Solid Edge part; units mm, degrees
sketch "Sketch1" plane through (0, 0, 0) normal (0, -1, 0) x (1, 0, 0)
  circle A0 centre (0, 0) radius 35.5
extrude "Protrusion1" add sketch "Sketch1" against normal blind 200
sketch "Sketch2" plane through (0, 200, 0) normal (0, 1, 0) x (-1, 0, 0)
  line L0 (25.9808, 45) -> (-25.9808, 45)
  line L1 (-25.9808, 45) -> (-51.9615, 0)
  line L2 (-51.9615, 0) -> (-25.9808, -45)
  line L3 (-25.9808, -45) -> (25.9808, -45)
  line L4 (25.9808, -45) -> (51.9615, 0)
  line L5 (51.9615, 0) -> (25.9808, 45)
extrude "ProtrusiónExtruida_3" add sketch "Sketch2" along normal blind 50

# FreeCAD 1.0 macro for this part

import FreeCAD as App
import Part
import Sketcher

V = App.Vector
Q = App.Units.Quantity

doc = App.newDocument("Part")
body = doc.addObject("PartDesign::Body", "Body")

sketch1 = doc.addObject("Sketcher::SketchObject", "Sketch")
body.addObject(sketch1)
sketch1.AttachmentSupport = (doc.XZ_Plane, [""])
sketch1.MapMode = "FlatFace"
sketch1.addGeometry(Part.Circle(V(0, 0, 0), V(0, 0, 1), 36), False)
sketch1.addConstraint([
    Sketcher.Constraint("Coincident", 0, 3, -1, 1),
    Sketcher.Constraint("Diameter", 0, 71.0),
])
pad1 = doc.addObject("PartDesign::Pad", "Pad")
body.addObject(pad1)
pad1.Profile = sketch1
pad1.Length = 200
pad1.Reversed = True

sketch2 = doc.addObject("Sketcher::SketchObject", "Sketch001")
body.addObject(sketch2)
sketch2.AttachmentSupport = (doc.XZ_Plane, [""])
sketch2.MapMode = "FlatFace"
sketch2.AttachmentOffset = App.Placement(V(0, 0, -200), App.Rotation())
sketch2.addGeometry([
    Part.LineSegment(V(-52, 0, 0), V(-26, 45, 0)),
    Part.LineSegment(V(-26, 45, 0), V(26, 45, 0)),
    Part.LineSegment(V(26, 45, 0), V(52, 0, 0)),
    Part.LineSegment(V(52, 0, 0), V(26, -45, 0)),
    Part.LineSegment(V(26, -45, 0), V(-26, -45, 0)),
    Part.LineSegment(V(-26, -45, 0), V(-52, 0, 0)),
], False)
sketch2.addConstraint([
    Sketcher.Constraint("Coincident", 0, 2, 1, 1),
    Sketcher.Constraint("Coincident", 1, 2, 2, 1),
    Sketcher.Constraint("Coincident", 2, 2, 3, 1),
    Sketcher.Constraint("Coincident", 3, 2, 4, 1),
    Sketcher.Constraint("Coincident", 4, 2, 5, 1),
    Sketcher.Constraint("Coincident", 5, 2, 0, 1),
    Sketcher.Constraint("Horizontal", 1),
    Sketcher.Constraint("Horizontal", 4),
    Sketcher.Constraint("Symmetric", 0, 2, 3, 2, -1, 1),
    Sketcher.Constraint("Symmetric", 2, 2, 5, 2, -1, 1),
    Sketcher.Constraint("PointOnObject", 2, 2, -1),
    Sketcher.Constraint("Parallel", 2, 5),
    Sketcher.Constraint("Vertical", 1, 2, 3, 2),
    Sketcher.Constraint("Angle", 0, Q("60 deg")),
    Sketcher.Constraint("DistanceY", -1, 1, 0, 2, 45.0),
    Sketcher.Constraint("DistanceX", 1, 1, 1, 2, 51.9616),
])
pad2 = doc.addObject("PartDesign::Pad", "Pad001")
body.addObject(pad2)
pad2.Profile = sketch2
pad2.Length = 50
pad2.Reversed = True

doc.recompute()
